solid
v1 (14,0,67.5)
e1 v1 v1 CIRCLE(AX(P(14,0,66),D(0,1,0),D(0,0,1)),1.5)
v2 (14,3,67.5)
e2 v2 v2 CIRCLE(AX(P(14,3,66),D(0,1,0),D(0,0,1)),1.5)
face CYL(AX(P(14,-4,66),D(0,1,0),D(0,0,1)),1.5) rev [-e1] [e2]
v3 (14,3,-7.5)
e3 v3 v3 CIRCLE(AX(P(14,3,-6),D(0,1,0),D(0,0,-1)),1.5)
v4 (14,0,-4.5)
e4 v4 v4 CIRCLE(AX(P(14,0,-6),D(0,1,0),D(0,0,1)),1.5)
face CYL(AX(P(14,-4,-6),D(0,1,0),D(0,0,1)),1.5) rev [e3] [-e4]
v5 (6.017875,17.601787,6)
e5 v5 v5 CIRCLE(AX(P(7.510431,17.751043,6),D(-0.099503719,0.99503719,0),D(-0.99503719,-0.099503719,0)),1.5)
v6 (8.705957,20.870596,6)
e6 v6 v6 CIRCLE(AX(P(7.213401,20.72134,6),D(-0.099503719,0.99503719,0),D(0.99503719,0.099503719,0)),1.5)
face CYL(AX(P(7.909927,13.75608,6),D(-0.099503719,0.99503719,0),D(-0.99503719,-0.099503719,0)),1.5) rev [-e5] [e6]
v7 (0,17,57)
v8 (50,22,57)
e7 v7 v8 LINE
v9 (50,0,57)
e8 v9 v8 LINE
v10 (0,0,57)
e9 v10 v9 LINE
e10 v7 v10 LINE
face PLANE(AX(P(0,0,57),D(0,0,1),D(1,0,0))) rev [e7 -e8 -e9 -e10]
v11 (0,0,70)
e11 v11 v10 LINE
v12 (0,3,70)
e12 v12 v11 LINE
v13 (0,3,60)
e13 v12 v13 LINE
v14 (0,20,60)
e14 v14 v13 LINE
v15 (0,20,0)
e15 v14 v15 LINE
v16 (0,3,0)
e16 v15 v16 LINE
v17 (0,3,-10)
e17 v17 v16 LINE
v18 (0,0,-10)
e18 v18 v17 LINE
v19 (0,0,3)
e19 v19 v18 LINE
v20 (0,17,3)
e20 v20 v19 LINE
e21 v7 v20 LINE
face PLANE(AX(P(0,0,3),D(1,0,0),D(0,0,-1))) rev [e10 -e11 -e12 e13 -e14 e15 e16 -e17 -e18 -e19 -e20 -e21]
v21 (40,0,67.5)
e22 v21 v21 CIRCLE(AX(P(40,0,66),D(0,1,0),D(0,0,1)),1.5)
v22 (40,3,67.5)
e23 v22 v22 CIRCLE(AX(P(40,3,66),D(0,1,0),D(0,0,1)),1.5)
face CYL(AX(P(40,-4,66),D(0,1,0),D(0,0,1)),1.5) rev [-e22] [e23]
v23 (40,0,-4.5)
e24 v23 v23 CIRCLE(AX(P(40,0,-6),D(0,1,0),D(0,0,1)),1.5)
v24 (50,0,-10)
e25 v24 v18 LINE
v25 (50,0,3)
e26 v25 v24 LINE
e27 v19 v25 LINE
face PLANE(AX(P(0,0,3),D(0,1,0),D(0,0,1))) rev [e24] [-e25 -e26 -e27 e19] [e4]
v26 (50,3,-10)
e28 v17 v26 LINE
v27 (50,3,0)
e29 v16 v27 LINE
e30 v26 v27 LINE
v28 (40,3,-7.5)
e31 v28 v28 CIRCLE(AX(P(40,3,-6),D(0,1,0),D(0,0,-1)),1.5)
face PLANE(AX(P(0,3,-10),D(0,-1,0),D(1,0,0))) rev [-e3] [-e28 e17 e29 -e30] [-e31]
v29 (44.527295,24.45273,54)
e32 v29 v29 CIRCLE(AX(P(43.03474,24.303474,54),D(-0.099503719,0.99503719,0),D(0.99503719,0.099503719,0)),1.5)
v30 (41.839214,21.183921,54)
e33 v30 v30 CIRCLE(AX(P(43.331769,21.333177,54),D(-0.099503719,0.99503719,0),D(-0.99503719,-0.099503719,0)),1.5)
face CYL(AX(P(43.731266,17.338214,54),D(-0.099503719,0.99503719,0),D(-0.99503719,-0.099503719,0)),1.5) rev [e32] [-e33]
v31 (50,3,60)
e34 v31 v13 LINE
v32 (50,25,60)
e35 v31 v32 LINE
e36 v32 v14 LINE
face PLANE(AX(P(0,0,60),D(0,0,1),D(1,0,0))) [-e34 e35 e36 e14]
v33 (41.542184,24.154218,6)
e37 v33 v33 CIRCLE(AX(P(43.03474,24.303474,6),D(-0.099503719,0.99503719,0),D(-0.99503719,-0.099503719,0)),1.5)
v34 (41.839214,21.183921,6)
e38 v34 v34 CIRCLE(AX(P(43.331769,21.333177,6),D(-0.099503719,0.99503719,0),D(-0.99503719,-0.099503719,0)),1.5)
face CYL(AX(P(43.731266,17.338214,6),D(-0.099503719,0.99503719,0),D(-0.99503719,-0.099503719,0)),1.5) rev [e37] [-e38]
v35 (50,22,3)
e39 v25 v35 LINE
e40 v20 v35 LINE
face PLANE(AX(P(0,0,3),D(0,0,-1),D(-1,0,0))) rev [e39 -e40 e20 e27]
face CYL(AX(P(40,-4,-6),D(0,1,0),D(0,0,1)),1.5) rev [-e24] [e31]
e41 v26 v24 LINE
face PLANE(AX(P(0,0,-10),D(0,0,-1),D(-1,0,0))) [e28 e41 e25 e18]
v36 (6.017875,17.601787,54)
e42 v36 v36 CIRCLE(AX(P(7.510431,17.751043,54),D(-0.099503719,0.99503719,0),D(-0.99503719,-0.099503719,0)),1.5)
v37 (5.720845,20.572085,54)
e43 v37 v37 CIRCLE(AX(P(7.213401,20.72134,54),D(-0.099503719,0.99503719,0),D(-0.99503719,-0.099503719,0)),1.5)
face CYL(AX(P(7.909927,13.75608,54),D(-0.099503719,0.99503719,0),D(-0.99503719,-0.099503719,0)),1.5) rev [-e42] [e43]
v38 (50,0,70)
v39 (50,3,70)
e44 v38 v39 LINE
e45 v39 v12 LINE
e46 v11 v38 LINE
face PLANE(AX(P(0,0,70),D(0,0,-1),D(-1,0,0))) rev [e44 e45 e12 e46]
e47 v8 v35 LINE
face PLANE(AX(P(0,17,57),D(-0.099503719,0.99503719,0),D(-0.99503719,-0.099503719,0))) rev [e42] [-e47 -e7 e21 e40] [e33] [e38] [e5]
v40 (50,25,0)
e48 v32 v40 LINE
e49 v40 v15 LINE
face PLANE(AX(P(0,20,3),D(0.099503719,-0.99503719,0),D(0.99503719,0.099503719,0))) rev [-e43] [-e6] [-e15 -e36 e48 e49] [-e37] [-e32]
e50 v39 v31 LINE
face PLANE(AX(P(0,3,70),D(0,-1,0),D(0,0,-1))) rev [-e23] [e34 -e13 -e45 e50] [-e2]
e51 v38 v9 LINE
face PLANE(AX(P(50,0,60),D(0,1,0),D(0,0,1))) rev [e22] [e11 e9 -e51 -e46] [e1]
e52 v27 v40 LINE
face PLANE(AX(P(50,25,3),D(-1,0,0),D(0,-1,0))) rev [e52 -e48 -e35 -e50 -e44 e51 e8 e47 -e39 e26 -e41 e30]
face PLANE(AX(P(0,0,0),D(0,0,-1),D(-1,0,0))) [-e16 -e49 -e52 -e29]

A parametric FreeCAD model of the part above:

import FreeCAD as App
import Part
import Sketcher
from FreeCAD import Vector
Q = App.Units.Quantity


def add_polygon(sketch, points):
    """Adds a closed chain of lines whose ends are joined by coincident constraints."""
    first, n = sketch.GeometryCount, len(points)
    for a, b in zip(points, points[1:] + points[:1]):
        sketch.addGeometry(Part.LineSegment(App.Vector(*a, 0), App.Vector(*b, 0)), False)
    for i in range(n):
        sketch.addConstraint(Sketcher.Constraint("Coincident", first + i, 2, first + (i + 1) % n, 1))

doc = App.newDocument("Part")
body = doc.addObject("PartDesign::Body", "Body")

# Sketch on XY plane
sketch1 = doc.addObject("Sketcher::SketchObject", "Sketch")
body.addObject(sketch1)
sketch1.AttachmentSupport = (doc.XY_Plane, [""])
sketch1.MapMode = "FlatFace"
add_polygon(sketch1, [(0, 0), (50, 0), (50, 25), (0, 20)])  # lines 0-3
sketch1.addConstraint(Sketcher.Constraint("Horizontal", 0))
sketch1.addConstraint(Sketcher.Constraint("Vertical", 1))
sketch1.addConstraint(Sketcher.Constraint("Vertical", 3))
sketch1.addConstraint(Sketcher.Constraint("Coincident", 3, 2, -1, 1))
sketch1.addConstraint(Sketcher.Constraint("DistanceX", 0, 1, 0, 2, Q("50 mm")))
sketch1.addConstraint(Sketcher.Constraint("DistanceY", 1, 1, 1, 2, Q("25 mm")))
sketch1.addConstraint(Sketcher.Constraint("DistanceY", 3, 2, 3, 1, Q("20 mm")))
pad1 = doc.addObject("PartDesign::Pad", "Pad")
body.addObject(pad1)
pad1.Profile = sketch1
pad1.Length = 3

# Sketch on XY plane
sketch2 = doc.addObject("Sketcher::SketchObject", "Sketch001")
body.addObject(sketch2)
sketch2.AttachmentSupport = (doc.XY_Plane, [""])
sketch2.MapMode = "FlatFace"
sketch2.AttachmentOffset = App.Placement(Vector(0, 0, 3), App.Rotation())
add_polygon(sketch2, [(0, 20), (0, 17), (50, 22), (50, 25)])  # lines 0-3
sketch2.addConstraint(Sketcher.Constraint("Vertical", 0))
sketch2.addConstraint(Sketcher.Constraint("Vertical", 2))
sketch2.addConstraint(Sketcher.Constraint("PointOnObject", 0, 2, -2))
sketch2.addConstraint(Sketcher.Constraint("Parallel", 1, 3))
sketch2.addConstraint(Sketcher.Constraint("DistanceY", 0, 2, 0, 1, Q("3 mm")))
sketch2.addConstraint(Sketcher.Constraint("DistanceY", -1, 1, 0, 2, Q("17 mm")))
sketch2.addConstraint(Sketcher.Constraint("DistanceX", -1, 1, 1, 2, Q("50 mm")))
sketch2.addConstraint(Sketcher.Constraint("DistanceY", -1, 1, 1, 2, Q("22 mm")))
pad2 = doc.addObject("PartDesign::Pad", "Pad001")
body.addObject(pad2)
pad2.Profile = sketch2
pad2.Length = 54

# Sketch on XY plane
sketch3 = doc.addObject("Sketcher::SketchObject", "Sketch002")
body.addObject(sketch3)
sketch3.AttachmentSupport = (doc.XY_Plane, [""])
sketch3.MapMode = "FlatFace"
sketch3.AttachmentOffset = App.Placement(Vector(0, 0, 57), App.Rotation())
add_polygon(sketch3, [(50, 25), (0, 20), (0, 0), (50, 0)])  # lines 0-3
sketch3.addConstraint(Sketcher.Constraint("Vertical", 1))
sketch3.addConstraint(Sketcher.Constraint("Horizontal", 2))
sketch3.addConstraint(Sketcher.Constraint("Vertical", 3))
sketch3.addConstraint(Sketcher.Constraint("Coincident", 1, 2, -1, 1))
sketch3.addConstraint(Sketcher.Constraint("DistanceX", 2, 1, 2, 2, Q("50 mm")))
sketch3.addConstraint(Sketcher.Constraint("DistanceY", 1, 2, 1, 1, Q("20 mm")))
sketch3.addConstraint(Sketcher.Constraint("DistanceY", 3, 1, 3, 2, Q("25 mm")))
pad3 = doc.addObject("PartDesign::Pad", "Pad002")
body.addObject(pad3)
pad3.Profile = sketch3
pad3.Length = 3

# Sketch on XY plane
sketch4 = doc.addObject("Sketcher::SketchObject", "Sketch003")
body.addObject(sketch4)
sketch4.AttachmentSupport = (doc.XY_Plane, [""])
sketch4.MapMode = "FlatFace"
sketch4.AttachmentOffset = App.Placement(Vector(0, 0, 60), App.Rotation())
add_polygon(sketch4, [(0, 3), (0, 0), (50, 0), (50, 3)])  # lines 0-3
sketch4.addConstraint(Sketcher.Constraint("Vertical", 0))
sketch4.addConstraint(Sketcher.Constraint("Horizontal", 1))
sketch4.addConstraint(Sketcher.Constraint("Vertical", 2))
sketch4.addConstraint(Sketcher.Constraint("Horizontal", 3))
sketch4.addConstraint(Sketcher.Constraint("Coincident", 0, 2, -1, 1))
sketch4.addConstraint(Sketcher.Constraint("DistanceX", 1, 1, 1, 2, Q("50 mm")))
sketch4.addConstraint(Sketcher.Constraint("DistanceY", 0, 2, 0, 1, Q("3 mm")))
pad4 = doc.addObject("PartDesign::Pad", "Pad003")
body.addObject(pad4)
pad4.Profile = sketch4
pad4.Length = 10

# Sketch on XY plane
sketch5 = doc.addObject("Sketcher::SketchObject", "Sketch004")
body.addObject(sketch5)
sketch5.AttachmentSupport = (doc.XY_Plane, [""])
sketch5.MapMode = "FlatFace"
add_polygon(sketch5, [(50, 3), (50, 0), (0, 0), (0, 3)])  # lines 0-3
sketch5.addConstraint(Sketcher.Constraint("Vertical", 0))
sketch5.addConstraint(Sketcher.Constraint("Horizontal", 1))
sketch5.addConstraint(Sketcher.Constraint("Vertical", 2))
sketch5.addConstraint(Sketcher.Constraint("Horizontal", 3))
sketch5.addConstraint(Sketcher.Constraint("Coincident", 1, 2, -1, 1))
sketch5.addConstraint(Sketcher.Constraint("DistanceX", 1, 2, 1, 1, Q("50 mm")))
sketch5.addConstraint(Sketcher.Constraint("DistanceY", 0, 2, 0, 1, Q("3 mm")))
pad5 = doc.addObject("PartDesign::Pad", "Pad004")
body.addObject(pad5)
pad5.Profile = sketch5
pad5.Length = 10
pad5.Reversed = True

# Sketch on XZ plane
sketch6 = doc.addObject("Sketcher::SketchObject", "Sketch005")
body.addObject(sketch6)
sketch6.AttachmentSupport = (doc.XZ_Plane, [""])
sketch6.MapMode = "FlatFace"
sketch6.AttachmentOffset = App.Placement(Vector(0, 0, -3), App.Rotation())
sketch6.addGeometry(Part.Circle(Vector(14, 66, 0), Vector(0, 0, 1), 1.5), False)
sketch6.addGeometry(Part.Circle(Vector(40, 66, 0), Vector(0, 0, 1), 1.5), False)
sketch6.addGeometry(Part.Circle(Vector(40, -6, 0), Vector(0, 0, 1), 1.5), False)
sketch6.addGeometry(Part.Circle(Vector(14, -6, 0), Vector(0, 0, 1), 1.5), False)
sketch6.addConstraint(Sketcher.Constraint("Equal", 0, 1))
sketch6.addConstraint(Sketcher.Constraint("Equal", 1, 2))
sketch6.addConstraint(Sketcher.Constraint("Equal", 2, 3))
sketch6.addConstraint(Sketcher.Constraint("Horizontal", 0, 3, 1, 3))
sketch6.addConstraint(Sketcher.Constraint("Horizontal", 2, 3, 3, 3))
sketch6.addConstraint(Sketcher.Constraint("Vertical", 1, 3, 2, 3))
sketch6.addConstraint(Sketcher.Constraint("Vertical", 0, 3, 3, 3))
sketch6.addConstraint(Sketcher.Constraint("Diameter", 0, Q("3 mm")))
sketch6.addConstraint(Sketcher.Constraint("DistanceX", -1, 1, 0, 3, Q("14 mm")))
sketch6.addConstraint(Sketcher.Constraint("DistanceY", -1, 1, 0, 3, Q("66 mm")))
sketch6.addConstraint(Sketcher.Constraint("DistanceX", -1, 1, 1, 3, Q("40 mm")))
sketch6.addConstraint(Sketcher.Constraint("DistanceY", 2, 3, -1, 1, Q("6 mm")))
pocket1 = doc.addObject("PartDesign::Pocket", "Pocket")
body.addObject(pocket1)
pocket1.Profile = sketch6
pocket1.Length = 7
pocket1.Reversed = True

# Sketch on an angled plane
sketch7 = doc.addObject("Sketcher::SketchObject", "Sketch006")
body.addObject(sketch7)
sketch7.Placement = App.Placement(Vector(-1.980198, 19.80198, 0), App.Rotation(Vector(0.99503719, 0.099503719, 0), Vector(0, 0, -1), Vector(-0.099503719, 0.99503719, 0), "ZXY"))
sketch7.addGeometry(Part.Circle(Vector(45.2, -6, 0), Vector(0, 0, 1), 1.5), False)
sketch7.addGeometry(Part.Circle(Vector(45.2, -54, 0), Vector(0, 0, 1), 1.5), False)
sketch7.addGeometry(Part.Circle(Vector(9.2, -54, 0), Vector(0, 0, 1), 1.5), False)
sketch7.addGeometry(Part.Circle(Vector(9.2, -6, 0), Vector(0, 0, 1), 1.5), False)
sketch7.addConstraint(Sketcher.Constraint("Equal", 0, 1))
sketch7.addConstraint(Sketcher.Constraint("Equal", 1, 2))
sketch7.addConstraint(Sketcher.Constraint("Equal", 2, 3))
sketch7.addConstraint(Sketcher.Constraint("Horizontal", 1, 3, 2, 3))
sketch7.addConstraint(Sketcher.Constraint("Horizontal", 0, 3, 3, 3))
sketch7.addConstraint(Sketcher.Constraint("Vertical", 0, 3, 1, 3))
sketch7.addConstraint(Sketcher.Constraint("Vertical", 2, 3, 3, 3))
sketch7.addConstraint(Sketcher.Constraint("Diameter", 0, Q("3 mm")))
sketch7.addConstraint(Sketcher.Constraint("DistanceY", 0, 3, -1, 1, Q("6 mm")))
sketch7.addConstraint(Sketcher.Constraint("DistanceY", 1, 3, -1, 1, Q("54 mm")))
sketch7.addConstraint(Sketcher.Constraint("DistanceX", 2, 3, 1, 3, Q("36 mm")))
sketch7.addConstraint(Sketcher.Constraint("DistanceX", -1, 1, 0, 3, Q("45.239452 mm")))
pocket2 = doc.addObject("PartDesign::Pocket", "Pocket001")
body.addObject(pocket2)
pocket2.Profile = sketch7
pocket2.Length = 7

doc.recompute()
